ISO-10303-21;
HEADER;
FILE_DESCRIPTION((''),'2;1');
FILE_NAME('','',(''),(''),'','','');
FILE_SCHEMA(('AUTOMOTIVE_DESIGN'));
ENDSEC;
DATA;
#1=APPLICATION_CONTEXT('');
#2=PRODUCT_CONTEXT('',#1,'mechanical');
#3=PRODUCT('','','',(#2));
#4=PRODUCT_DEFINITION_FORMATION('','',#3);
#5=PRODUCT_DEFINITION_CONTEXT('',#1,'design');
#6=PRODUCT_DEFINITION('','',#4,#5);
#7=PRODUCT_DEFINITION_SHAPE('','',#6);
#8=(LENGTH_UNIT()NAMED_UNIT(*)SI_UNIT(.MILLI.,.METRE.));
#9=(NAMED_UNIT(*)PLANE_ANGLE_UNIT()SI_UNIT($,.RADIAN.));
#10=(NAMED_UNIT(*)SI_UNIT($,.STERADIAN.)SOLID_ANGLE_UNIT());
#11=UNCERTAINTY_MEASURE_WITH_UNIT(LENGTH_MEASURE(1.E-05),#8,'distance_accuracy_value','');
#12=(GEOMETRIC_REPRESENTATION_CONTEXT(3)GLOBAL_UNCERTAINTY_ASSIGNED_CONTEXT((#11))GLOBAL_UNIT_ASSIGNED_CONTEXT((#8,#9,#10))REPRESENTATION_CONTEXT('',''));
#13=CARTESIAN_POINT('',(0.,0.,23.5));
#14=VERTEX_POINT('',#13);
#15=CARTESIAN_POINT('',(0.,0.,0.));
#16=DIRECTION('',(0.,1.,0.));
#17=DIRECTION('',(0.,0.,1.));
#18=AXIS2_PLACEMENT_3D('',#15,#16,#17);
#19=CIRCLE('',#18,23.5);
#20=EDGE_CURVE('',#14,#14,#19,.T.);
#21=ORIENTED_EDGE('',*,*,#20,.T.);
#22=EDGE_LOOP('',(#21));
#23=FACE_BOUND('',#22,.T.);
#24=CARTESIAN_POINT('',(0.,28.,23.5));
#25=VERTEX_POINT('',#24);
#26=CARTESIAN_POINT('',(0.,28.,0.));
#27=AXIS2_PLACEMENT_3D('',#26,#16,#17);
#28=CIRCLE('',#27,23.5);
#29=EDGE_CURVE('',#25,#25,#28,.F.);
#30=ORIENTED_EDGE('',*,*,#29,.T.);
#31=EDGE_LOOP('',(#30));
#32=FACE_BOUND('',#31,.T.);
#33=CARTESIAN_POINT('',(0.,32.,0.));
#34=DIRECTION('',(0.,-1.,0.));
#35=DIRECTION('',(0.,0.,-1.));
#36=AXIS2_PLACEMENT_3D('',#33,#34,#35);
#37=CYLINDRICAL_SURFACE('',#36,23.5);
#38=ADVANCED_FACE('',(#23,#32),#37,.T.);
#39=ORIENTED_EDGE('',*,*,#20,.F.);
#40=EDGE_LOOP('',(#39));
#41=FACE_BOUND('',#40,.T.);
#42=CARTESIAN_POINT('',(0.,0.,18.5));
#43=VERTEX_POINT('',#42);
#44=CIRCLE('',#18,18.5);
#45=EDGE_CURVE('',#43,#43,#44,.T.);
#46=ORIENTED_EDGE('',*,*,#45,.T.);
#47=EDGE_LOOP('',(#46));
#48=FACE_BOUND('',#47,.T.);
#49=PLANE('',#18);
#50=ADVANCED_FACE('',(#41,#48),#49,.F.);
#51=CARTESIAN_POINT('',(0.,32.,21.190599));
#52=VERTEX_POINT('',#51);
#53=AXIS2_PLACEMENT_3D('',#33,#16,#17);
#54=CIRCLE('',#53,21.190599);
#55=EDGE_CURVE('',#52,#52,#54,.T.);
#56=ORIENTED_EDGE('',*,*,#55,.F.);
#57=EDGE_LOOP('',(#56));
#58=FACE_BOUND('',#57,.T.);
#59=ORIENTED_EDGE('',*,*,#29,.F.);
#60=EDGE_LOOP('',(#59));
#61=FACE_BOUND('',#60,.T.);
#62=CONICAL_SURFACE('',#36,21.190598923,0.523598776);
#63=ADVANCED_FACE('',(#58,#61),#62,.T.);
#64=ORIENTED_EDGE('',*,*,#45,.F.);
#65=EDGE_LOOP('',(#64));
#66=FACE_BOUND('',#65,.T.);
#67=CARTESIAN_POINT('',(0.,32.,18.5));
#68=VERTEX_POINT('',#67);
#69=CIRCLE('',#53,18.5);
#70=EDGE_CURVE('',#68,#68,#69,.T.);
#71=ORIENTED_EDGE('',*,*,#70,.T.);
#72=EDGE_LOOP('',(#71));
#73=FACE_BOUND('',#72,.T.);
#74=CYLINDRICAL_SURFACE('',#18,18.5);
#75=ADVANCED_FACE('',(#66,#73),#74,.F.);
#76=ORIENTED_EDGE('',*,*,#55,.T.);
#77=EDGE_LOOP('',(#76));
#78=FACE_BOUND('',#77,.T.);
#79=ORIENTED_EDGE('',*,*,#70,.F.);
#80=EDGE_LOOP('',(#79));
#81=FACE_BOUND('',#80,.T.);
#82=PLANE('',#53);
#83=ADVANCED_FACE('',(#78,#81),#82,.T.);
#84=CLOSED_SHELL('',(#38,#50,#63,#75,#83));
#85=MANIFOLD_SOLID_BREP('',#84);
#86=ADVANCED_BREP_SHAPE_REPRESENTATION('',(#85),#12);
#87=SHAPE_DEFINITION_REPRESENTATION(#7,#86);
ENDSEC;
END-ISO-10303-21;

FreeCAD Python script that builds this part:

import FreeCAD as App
import Part
import Sketcher
from FreeCAD import Vector


def edges_at(feature, points):
    """Names of the edges that pass closest to the given points."""
    edges = feature.Shape.Edges
    near = lambda p: min(range(len(edges)), key=lambda i: edges[i].distToShape(Part.Vertex(*p))[0])
    return sorted({f"Edge{near(p) + 1}" for p in points})

doc = App.newDocument("Part")
body = doc.addObject("PartDesign::Body", "Body")

# Sketch on XZ plane
sketch1 = body.newObject("Sketcher::SketchObject", "Sketch")
sketch1.AttachmentSupport = (doc.getObject("XZ_Plane"), [""])
sketch1.MapMode = "FlatFace"
sketch1.addGeometry(Part.Circle(Vector(0, 0, 0), Vector(0, 0, 1), 23.5), False)
sketch1.addConstraint([
    Sketcher.Constraint("Coincident", 0, 3, -1, 1),
    Sketcher.Constraint("Diameter", 0, 47.0),
])
pad1 = body.newObject("PartDesign::Pad", "Pad")
pad1.Profile = sketch1
pad1.Length = 32
pad1.Reversed = True

# Sketch on XZ plane
sketch2 = body.newObject("Sketcher::SketchObject", "Sketch001")
sketch2.AttachmentSupport = (doc.getObject("XZ_Plane"), [""])
sketch2.MapMode = "FlatFace"
sketch2.AttachmentOffset = App.Placement(Vector(0, 0, -32), App.Rotation())
sketch2.addGeometry(Part.Circle(Vector(0, 0, 0), Vector(0, 0, 1), 18.5), False)
sketch2.addConstraint([
    Sketcher.Constraint("Coincident", 0, 3, -1, 1),
    Sketcher.Constraint("Diameter", 0, 37.0),
])
pocket1 = body.newObject("PartDesign::Pocket", "Pocket")
pocket1.Profile = sketch2
pocket1.Length = 32
pocket1.Reversed = True
doc.recompute()

chamfer = body.newObject("PartDesign::Chamfer", "Chamfer")
chamfer.Base = (pocket1, edges_at(pocket1, [(0, 32, -23.5)]))
chamfer.ChamferType = "Two distances"
chamfer.Size = 4
chamfer.Size2 = 2.309401

doc.recompute()
